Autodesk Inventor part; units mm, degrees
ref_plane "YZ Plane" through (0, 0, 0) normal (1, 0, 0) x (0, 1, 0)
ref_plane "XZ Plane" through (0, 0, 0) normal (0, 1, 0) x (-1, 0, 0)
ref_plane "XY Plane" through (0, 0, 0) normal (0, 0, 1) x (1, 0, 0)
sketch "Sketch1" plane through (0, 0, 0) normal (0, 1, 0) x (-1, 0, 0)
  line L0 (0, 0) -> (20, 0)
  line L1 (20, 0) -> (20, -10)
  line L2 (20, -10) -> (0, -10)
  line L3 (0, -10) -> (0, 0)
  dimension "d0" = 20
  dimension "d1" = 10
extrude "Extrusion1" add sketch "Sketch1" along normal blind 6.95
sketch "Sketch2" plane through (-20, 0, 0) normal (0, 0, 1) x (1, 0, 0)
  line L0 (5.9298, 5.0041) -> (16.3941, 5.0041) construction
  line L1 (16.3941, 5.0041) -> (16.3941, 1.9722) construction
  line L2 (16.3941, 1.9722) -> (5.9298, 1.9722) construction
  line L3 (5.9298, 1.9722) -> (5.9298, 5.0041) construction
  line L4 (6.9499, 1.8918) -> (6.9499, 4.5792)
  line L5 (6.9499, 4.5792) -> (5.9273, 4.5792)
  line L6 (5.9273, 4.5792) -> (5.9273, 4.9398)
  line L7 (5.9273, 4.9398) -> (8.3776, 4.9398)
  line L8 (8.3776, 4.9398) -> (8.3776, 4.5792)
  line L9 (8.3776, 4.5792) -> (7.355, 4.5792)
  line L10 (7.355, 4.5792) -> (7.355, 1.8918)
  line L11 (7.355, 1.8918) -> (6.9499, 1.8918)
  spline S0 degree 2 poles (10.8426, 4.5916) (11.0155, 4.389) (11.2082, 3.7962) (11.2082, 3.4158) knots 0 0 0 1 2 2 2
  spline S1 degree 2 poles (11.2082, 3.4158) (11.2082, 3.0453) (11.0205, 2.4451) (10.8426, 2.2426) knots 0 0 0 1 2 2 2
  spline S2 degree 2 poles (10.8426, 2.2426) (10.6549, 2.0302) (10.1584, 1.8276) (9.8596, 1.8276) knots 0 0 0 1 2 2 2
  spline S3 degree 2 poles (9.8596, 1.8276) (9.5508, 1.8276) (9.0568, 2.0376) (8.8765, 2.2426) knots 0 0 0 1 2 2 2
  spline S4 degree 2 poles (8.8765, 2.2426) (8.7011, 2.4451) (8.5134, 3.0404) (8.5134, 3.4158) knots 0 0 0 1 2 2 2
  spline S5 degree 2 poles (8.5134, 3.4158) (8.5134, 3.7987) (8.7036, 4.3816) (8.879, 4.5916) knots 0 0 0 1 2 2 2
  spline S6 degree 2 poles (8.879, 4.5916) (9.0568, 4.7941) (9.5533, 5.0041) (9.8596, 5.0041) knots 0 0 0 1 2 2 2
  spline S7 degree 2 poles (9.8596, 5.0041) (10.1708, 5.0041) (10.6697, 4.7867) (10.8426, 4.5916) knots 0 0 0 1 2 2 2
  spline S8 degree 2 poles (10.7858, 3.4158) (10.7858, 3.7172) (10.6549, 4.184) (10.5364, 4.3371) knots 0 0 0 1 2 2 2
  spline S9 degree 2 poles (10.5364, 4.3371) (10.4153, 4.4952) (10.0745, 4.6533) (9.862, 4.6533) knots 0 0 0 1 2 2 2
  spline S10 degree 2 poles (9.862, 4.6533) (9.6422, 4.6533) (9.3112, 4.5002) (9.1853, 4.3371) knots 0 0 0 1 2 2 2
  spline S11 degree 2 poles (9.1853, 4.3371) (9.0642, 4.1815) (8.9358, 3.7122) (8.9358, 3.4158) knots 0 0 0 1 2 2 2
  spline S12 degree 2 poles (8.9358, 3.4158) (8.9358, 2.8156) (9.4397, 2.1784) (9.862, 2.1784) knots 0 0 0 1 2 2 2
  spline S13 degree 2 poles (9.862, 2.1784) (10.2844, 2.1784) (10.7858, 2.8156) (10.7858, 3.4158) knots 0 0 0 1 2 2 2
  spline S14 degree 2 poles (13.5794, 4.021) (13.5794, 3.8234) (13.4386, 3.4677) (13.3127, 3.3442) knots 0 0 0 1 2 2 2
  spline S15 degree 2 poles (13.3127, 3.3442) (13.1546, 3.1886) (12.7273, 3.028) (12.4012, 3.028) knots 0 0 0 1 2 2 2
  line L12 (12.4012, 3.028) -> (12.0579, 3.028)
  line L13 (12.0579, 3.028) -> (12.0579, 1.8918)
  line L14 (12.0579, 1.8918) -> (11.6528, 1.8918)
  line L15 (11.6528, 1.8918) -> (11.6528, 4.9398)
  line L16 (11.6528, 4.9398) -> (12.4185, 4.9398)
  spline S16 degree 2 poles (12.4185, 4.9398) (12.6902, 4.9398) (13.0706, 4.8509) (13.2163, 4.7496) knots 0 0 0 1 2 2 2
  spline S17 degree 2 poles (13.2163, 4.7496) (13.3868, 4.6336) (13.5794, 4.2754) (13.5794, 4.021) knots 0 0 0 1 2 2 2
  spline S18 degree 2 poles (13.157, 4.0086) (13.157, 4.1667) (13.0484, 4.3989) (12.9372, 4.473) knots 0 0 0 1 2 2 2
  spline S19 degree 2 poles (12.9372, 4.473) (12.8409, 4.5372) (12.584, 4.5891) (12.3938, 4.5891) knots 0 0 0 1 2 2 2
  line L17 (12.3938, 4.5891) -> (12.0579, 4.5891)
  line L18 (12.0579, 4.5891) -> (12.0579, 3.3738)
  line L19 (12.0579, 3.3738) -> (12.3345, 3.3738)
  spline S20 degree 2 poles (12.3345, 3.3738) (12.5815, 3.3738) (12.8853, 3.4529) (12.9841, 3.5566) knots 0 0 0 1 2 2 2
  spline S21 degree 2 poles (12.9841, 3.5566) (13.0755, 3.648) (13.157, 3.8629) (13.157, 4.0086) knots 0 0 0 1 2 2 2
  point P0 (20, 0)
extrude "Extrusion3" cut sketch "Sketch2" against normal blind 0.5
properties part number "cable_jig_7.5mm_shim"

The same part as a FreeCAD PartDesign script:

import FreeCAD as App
import Part
import Sketcher

V = App.Vector
Q = App.Units.Quantity

doc = App.newDocument("Part")
body = doc.addObject("PartDesign::Body", "Body")

sketch1 = body.newObject("Sketcher::SketchObject", "Sketch")
sketch1.AttachmentSupport = (doc.getObject("XZ_Plane"), [""])
sketch1.MapMode = "FlatFace"
sketch1.addGeometry([
    Part.LineSegment(V(-20, 0, 0), V(0, 0, 0)),
    Part.LineSegment(V(0, 0, 0), V(0, -10, 0)),
    Part.LineSegment(V(0, -10, 0), V(-20, -10, 0)),
    Part.LineSegment(V(-20, -10, 0), V(-20, 0, 0)),
], False)
sketch1.addConstraint([
    Sketcher.Constraint("Coincident", 0, 2, 1, 1),
    Sketcher.Constraint("Coincident", 1, 2, 2, 1),
    Sketcher.Constraint("Coincident", 2, 2, 3, 1),
    Sketcher.Constraint("Coincident", 3, 2, 0, 1),
    Sketcher.Constraint("Horizontal", 0),
    Sketcher.Constraint("Vertical", 1),
    Sketcher.Constraint("Horizontal", 2),
    Sketcher.Constraint("Vertical", 3),
    Sketcher.Constraint("Coincident", 0, 2, -1, 1),
    Sketcher.Constraint("DistanceX", 0, 1, 0, 2, Q("20 mm")),
    Sketcher.Constraint("DistanceY", 1, 2, 1, 1, Q("10 mm")),
])
pad1 = body.newObject("PartDesign::Pad", "Pad")
pad1.Profile = sketch1
pad1.Length = 6.95
pad1.Reversed = True

sketch2 = body.newObject("Sketcher::SketchObject", "Sketch001")
sketch2.AttachmentSupport = (doc.getObject("XY_Plane"), [""])
sketch2.MapMode = "FlatFace"
sketch2.addGeometry([
    Part.LineSegment(V(-13.0501, 4.5792, 0), V(-13.0501, 1.8918, 0)),
    Part.LineSegment(V(-13.0501, 1.8918, 0), V(-12.645, 1.8918, 0)),
    Part.LineSegment(V(-12.645, 1.8918, 0), V(-12.645, 4.5792, 0)),
    Part.LineSegment(V(-12.645, 4.5792, 0), V(-11.6224, 4.5792, 0)),
    Part.LineSegment(V(-11.6224, 4.5792, 0), V(-11.6224, 4.9398, 0)),
    Part.LineSegment(V(-11.6224, 4.9398, 0), V(-14.0727, 4.9398, 0)),
    Part.LineSegment(V(-14.0727, 4.9398, 0), V(-14.0727, 4.5792, 0)),
    Part.LineSegment(V(-14.0727, 4.5792, 0), V(-13.0501, 4.5792, 0)),
    Part.BSplineCurve([V(-9.1574, 4.5916, 0), V(-8.9845, 4.389, 0), V(-8.7918, 3.7962, 0), V(-8.7918, 3.4158, 0)], [3, 1, 3], [0, 1, 2], False, 2, [1, 1, 1, 1], False),
    Part.BSplineCurve([V(-10.1404, 5.0041, 0), V(-9.8292, 5.0041, 0), V(-9.3303, 4.7867, 0), V(-9.1574, 4.5916, 0)], [3, 1, 3], [0, 1, 2], False, 2, [1, 1, 1, 1], False),
    Part.BSplineCurve([V(-11.121, 4.5916, 0), V(-10.9432, 4.7941, 0), V(-10.4467, 5.0041, 0), V(-10.1404, 5.0041, 0)], [3, 1, 3], [0, 1, 2], False, 2, [1, 1, 1, 1], False),
    Part.BSplineCurve([V(-11.4866, 3.4158, 0), V(-11.4866, 3.7987, 0), V(-11.2964, 4.3816, 0), V(-11.121, 4.5916, 0)], [3, 1, 3], [0, 1, 2], False, 2, [1, 1, 1, 1], False),
    Part.BSplineCurve([V(-11.1235, 2.2426, 0), V(-11.2989, 2.4451, 0), V(-11.4866, 3.0404, 0), V(-11.4866, 3.4158, 0)], [3, 1, 3], [0, 1, 2], False, 2, [1, 1, 1, 1], False),
    Part.BSplineCurve([V(-10.1404, 1.8276, 0), V(-10.4492, 1.8276, 0), V(-10.9432, 2.0376, 0), V(-11.1235, 2.2426, 0)], [3, 1, 3], [0, 1, 2], False, 2, [1, 1, 1, 1], False),
    Part.BSplineCurve([V(-9.1574, 2.2426, 0), V(-9.3451, 2.0302, 0), V(-9.8416, 1.8276, 0), V(-10.1404, 1.8276, 0)], [3, 1, 3], [0, 1, 2], False, 2, [1, 1, 1, 1], False),
    Part.BSplineCurve([V(-8.7918, 3.4158, 0), V(-8.7918, 3.0453, 0), V(-8.9795, 2.4451, 0), V(-9.1574, 2.2426, 0)], [3, 1, 3], [0, 1, 2], False, 2, [1, 1, 1, 1], False),
    Part.BSplineCurve([V(-9.2142, 3.4158, 0), V(-9.2142, 3.7172, 0), V(-9.3451, 4.184, 0), V(-9.4636, 4.3371, 0)], [3, 1, 3], [0, 1, 2], False, 2, [1, 1, 1, 1], False),
    Part.BSplineCurve([V(-10.138, 2.1784, 0), V(-9.7156, 2.1784, 0), V(-9.2142, 2.8156, 0), V(-9.2142, 3.4158, 0)], [3, 1, 3], [0, 1, 2], False, 2, [1, 1, 1, 1], False),
    Part.BSplineCurve([V(-11.0642, 3.4158, 0), V(-11.0642, 2.8156, 0), V(-10.5603, 2.1784, 0), V(-10.138, 2.1784, 0)], [3, 1, 3], [0, 1, 2], False, 2, [1, 1, 1, 1], False),
    Part.BSplineCurve([V(-10.8147, 4.3371, 0), V(-10.9358, 4.1815, 0), V(-11.0642, 3.7122, 0), V(-11.0642, 3.4158, 0)], [3, 1, 3], [0, 1, 2], False, 2, [1, 1, 1, 1], False),
    Part.BSplineCurve([V(-10.138, 4.6533, 0), V(-10.3578, 4.6533, 0), V(-10.6888, 4.5002, 0), V(-10.8147, 4.3371, 0)], [3, 1, 3], [0, 1, 2], False, 2, [1, 1, 1, 1], False),
    Part.BSplineCurve([V(-9.4636, 4.3371, 0), V(-9.5847, 4.4952, 0), V(-9.9255, 4.6533, 0), V(-10.138, 4.6533, 0)], [3, 1, 3], [0, 1, 2], False, 2, [1, 1, 1, 1], False),
    Part.BSplineCurve([V(-6.4206, 4.021, 0), V(-6.4206, 3.8234, 0), V(-6.5614, 3.4677, 0), V(-6.6873, 3.3442, 0)], [3, 1, 3], [0, 1, 2], False, 2, [1, 1, 1, 1], False),
    Part.BSplineCurve([V(-6.7837, 4.7496, 0), V(-6.6132, 4.6336, 0), V(-6.4206, 4.2754, 0), V(-6.4206, 4.021, 0)], [3, 1, 3], [0, 1, 2], False, 2, [1, 1, 1, 1], False),
    Part.BSplineCurve([V(-7.5815, 4.9398, 0), V(-7.3098, 4.9398, 0), V(-6.9294, 4.8509, 0), V(-6.7837, 4.7496, 0)], [3, 1, 3], [0, 1, 2], False, 2, [1, 1, 1, 1], False),
    Part.LineSegment(V(-7.5815, 4.9398, 0), V(-8.3472, 4.9398, 0)),
    Part.LineSegment(V(-8.3472, 4.9398, 0), V(-8.3472, 1.8918, 0)),
    Part.LineSegment(V(-8.3472, 1.8918, 0), V(-7.9421, 1.8918, 0)),
    Part.LineSegment(V(-7.9421, 1.8918, 0), V(-7.9421, 3.028, 0)),
    Part.LineSegment(V(-7.9421, 3.028, 0), V(-7.5988, 3.028, 0)),
    Part.BSplineCurve([V(-6.6873, 3.3442, 0), V(-6.8454, 3.1886, 0), V(-7.2727, 3.028, 0), V(-7.5988, 3.028, 0)], [3, 1, 3], [0, 1, 2], False, 2, [1, 1, 1, 1], False),
    Part.BSplineCurve([V(-6.843, 4.0086, 0), V(-6.843, 4.1667, 0), V(-6.9516, 4.3989, 0), V(-7.0628, 4.473, 0)], [3, 1, 3], [0, 1, 2], False, 2, [1, 1, 1, 1], False),
    Part.BSplineCurve([V(-7.0159, 3.5566, 0), V(-6.9245, 3.648, 0), V(-6.843, 3.8629, 0), V(-6.843, 4.0086, 0)], [3, 1, 3], [0, 1, 2], False, 2, [1, 1, 1, 1], False),
    Part.BSplineCurve([V(-7.6655, 3.3738, 0), V(-7.4185, 3.3738, 0), V(-7.1147, 3.4529, 0), V(-7.0159, 3.5566, 0)], [3, 1, 3], [0, 1, 2], False, 2, [1, 1, 1, 1], False),
    Part.LineSegment(V(-7.6655, 3.3738, 0), V(-7.9421, 3.3738, 0)),
    Part.LineSegment(V(-7.9421, 3.3738, 0), V(-7.9421, 4.5891, 0)),
    Part.LineSegment(V(-7.9421, 4.5891, 0), V(-7.6062, 4.5891, 0)),
    Part.BSplineCurve([V(-7.0628, 4.473, 0), V(-7.1591, 4.5372, 0), V(-7.416, 4.5891, 0), V(-7.6062, 4.5891, 0)], [3, 1, 3], [0, 1, 2], False, 2, [1, 1, 1, 1], False),
], False)
sketch2.addConstraint([
    Sketcher.Constraint("Block", 8),
    Sketcher.Constraint("Block", 9),
    Sketcher.Constraint("Block", 10),
    Sketcher.Constraint("Block", 11),
    Sketcher.Constraint("Block", 12),
    Sketcher.Constraint("Block", 13),
    Sketcher.Constraint("Block", 14),
    Sketcher.Constraint("Block", 15),
    Sketcher.Constraint("Block", 16),
    Sketcher.Constraint("Block", 17),
    Sketcher.Constraint("Block", 18),
    Sketcher.Constraint("Block", 19),
    Sketcher.Constraint("Block", 20),
    Sketcher.Constraint("Block", 21),
    Sketcher.Constraint("Block", 22),
    Sketcher.Constraint("Block", 23),
    Sketcher.Constraint("Block", 24),
    Sketcher.Constraint("Block", 30),
    Sketcher.Constraint("Block", 31),
    Sketcher.Constraint("Block", 32),
    Sketcher.Constraint("Block", 33),
    Sketcher.Constraint("Block", 37),
    Sketcher.Constraint("Coincident", 0, 2, 1, 1),
    Sketcher.Constraint("Coincident", 1, 2, 2, 1),
    Sketcher.Constraint("Coincident", 2, 2, 3, 1),
    Sketcher.Constraint("Coincident", 3, 2, 4, 1),
    Sketcher.Constraint("Coincident", 4, 2, 5, 1),
    Sketcher.Constraint("Coincident", 5, 2, 6, 1),
    Sketcher.Constraint("Coincident", 6, 2, 7, 1),
    Sketcher.Constraint("Coincident", 7, 2, 0, 1),
    Sketcher.Constraint("Coincident", 24, 1, 25, 1),
    Sketcher.Constraint("Coincident", 25, 2, 26, 1),
    Sketcher.Constraint("Coincident", 26, 2, 27, 1),
    Sketcher.Constraint("Coincident", 27, 2, 28, 1),
    Sketcher.Constraint("Coincident", 28, 2, 29, 1),
    Sketcher.Constraint("Coincident", 29, 2, 30, 2),
    Sketcher.Constraint("Coincident", 33, 1, 34, 1),
    Sketcher.Constraint("Coincident", 34, 2, 35, 1),
    Sketcher.Constraint("Coincident", 35, 2, 36, 1),
    Sketcher.Constraint("Coincident", 36, 2, 37, 2),
    Sketcher.Constraint("Vertical", 0),
    Sketcher.Constraint("Horizontal", 1),
    Sketcher.Constraint("Vertical", 2),
    Sketcher.Constraint("Horizontal", 3),
    Sketcher.Constraint("Vertical", 4),
    Sketcher.Constraint("Horizontal", 5),
    Sketcher.Constraint("Vertical", 6),
    Sketcher.Constraint("Horizontal", 7),
    Sketcher.Constraint("Horizontal", 25),
    Sketcher.Constraint("Vertical", 26),
    Sketcher.Constraint("Horizontal", 27),
    Sketcher.Constraint("Vertical", 28),
    Sketcher.Constraint("Horizontal", 29),
    Sketcher.Constraint("Horizontal", 34),
    Sketcher.Constraint("Vertical", 35),
    Sketcher.Constraint("Horizontal", 36),
    Sketcher.Constraint("Horizontal", 3, 2, 6, 2),
    Sketcher.Constraint("Horizontal", 5, 2, 25, 2),
    Sketcher.Constraint("Horizontal", 1, 2, 26, 2),
    Sketcher.Constraint("Vertical", 28, 2, 34, 2),
    Sketcher.Constraint("Equal", 3, 7),
    Sketcher.Constraint("Equal", 1, 27),
    Sketcher.Constraint("DistanceX", 1, 1, 1, 2, Q("0.405 mm")),
    Sketcher.Constraint("DistanceX", 36, 1, 36, 2, Q("0.336 mm")),
    Sketcher.Constraint("DistanceY", 26, 2, 26, 1, Q("3.048 mm")),
    Sketcher.Constraint("DistanceX", 0, 2, -1, 1, Q("13.05 mm")),
    Sketcher.Constraint("DistanceX", 3, 1, 3, 2, Q("1.0226 mm")),
    Sketcher.Constraint("DistanceY", 0, 2, 0, 1, Q("2.6874 mm")),
])
pocket1 = body.newObject("PartDesign::Pocket", "Pocket")
pocket1.Profile = sketch2
pocket1.Length = 0.5

doc.recompute()
